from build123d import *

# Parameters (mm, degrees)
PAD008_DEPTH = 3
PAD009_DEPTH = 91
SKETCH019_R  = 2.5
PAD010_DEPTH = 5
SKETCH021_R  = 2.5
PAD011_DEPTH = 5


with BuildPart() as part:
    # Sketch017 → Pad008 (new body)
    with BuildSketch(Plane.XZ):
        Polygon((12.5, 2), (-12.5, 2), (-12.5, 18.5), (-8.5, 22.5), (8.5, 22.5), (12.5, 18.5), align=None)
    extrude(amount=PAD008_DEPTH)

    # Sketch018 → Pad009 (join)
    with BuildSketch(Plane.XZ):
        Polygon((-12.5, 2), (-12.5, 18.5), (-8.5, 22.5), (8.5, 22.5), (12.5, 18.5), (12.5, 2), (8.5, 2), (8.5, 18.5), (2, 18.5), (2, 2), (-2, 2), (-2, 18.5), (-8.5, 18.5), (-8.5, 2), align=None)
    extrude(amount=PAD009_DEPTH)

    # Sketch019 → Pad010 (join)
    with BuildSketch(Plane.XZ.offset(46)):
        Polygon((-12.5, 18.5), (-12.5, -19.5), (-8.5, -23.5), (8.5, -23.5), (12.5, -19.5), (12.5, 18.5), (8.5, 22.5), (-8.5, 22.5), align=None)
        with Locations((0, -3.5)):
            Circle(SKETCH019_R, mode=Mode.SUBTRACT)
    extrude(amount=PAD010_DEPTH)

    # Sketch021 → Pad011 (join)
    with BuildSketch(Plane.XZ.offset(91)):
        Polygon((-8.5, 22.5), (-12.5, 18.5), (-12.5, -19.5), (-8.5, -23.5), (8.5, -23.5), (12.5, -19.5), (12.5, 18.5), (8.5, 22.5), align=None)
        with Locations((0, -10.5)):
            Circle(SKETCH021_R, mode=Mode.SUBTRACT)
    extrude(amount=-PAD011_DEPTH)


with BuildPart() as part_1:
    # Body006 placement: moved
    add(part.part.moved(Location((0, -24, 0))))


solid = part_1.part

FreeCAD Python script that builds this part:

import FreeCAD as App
import Part
import Sketcher
from FreeCAD import Vector
Q = App.Units.Quantity


def add_polygon(sketch, points):
    """Adds a closed chain of lines whose ends are joined by coincident constraints."""
    first, n = sketch.GeometryCount, len(points)
    for a, b in zip(points, points[1:] + points[:1]):
        sketch.addGeometry(Part.LineSegment(App.Vector(*a, 0), App.Vector(*b, 0)), False)
    for i in range(n):
        sketch.addConstraint(Sketcher.Constraint("Coincident", first + i, 2, first + (i + 1) % n, 1))

doc = App.newDocument("Part")
body = doc.addObject("PartDesign::Body", "Body")

# Sketch on XZ plane
sketch1 = body.newObject("Sketcher::SketchObject", "Sketch")
sketch1.AttachmentSupport = (doc.getObject("XZ_Plane"), [""])
sketch1.MapMode = "FlatFace"
add_polygon(sketch1, [(-12, 2), (12, 2), (12, 18), (8, 22), (-8, 22), (-12, 18)])  # lines 0-5
sketch1.addConstraint(Sketcher.Constraint("Horizontal", 0))
sketch1.addConstraint(Sketcher.Constraint("Vertical", 1))
sketch1.addConstraint(Sketcher.Constraint("Horizontal", 3))
sketch1.addConstraint(Sketcher.Constraint("Vertical", 5))
sketch1.addConstraint(Sketcher.Constraint("Symmetric", 1, 2, 4, 2, -2))
sketch1.addConstraint(Sketcher.Constraint("Perpendicular", 2, 4))
sketch1.addConstraint(Sketcher.Constraint("Equal", 2, 4))
sketch1.addConstraint(Sketcher.Constraint("DistanceX", 0, 1, 0, 2, Q("25 mm")))
sketch1.addConstraint(Sketcher.Constraint("DistanceX", 3, 2, 3, 1, Q("17 mm")))
sketch1.addConstraint(Sketcher.Constraint("DistanceY", 1, 1, 1, 2, Q("16.5 mm")))
sketch1.addConstraint(Sketcher.Constraint("DistanceY", -1, 1, 0, 2, Q("2 mm")))
pad1 = body.newObject("PartDesign::Pad", "Pad")
pad1.Profile = sketch1
pad1.Length = 3

# Sketch on XZ plane
sketch2 = body.newObject("Sketcher::SketchObject", "Sketch001")
sketch2.AttachmentSupport = (doc.getObject("XZ_Plane"), [""])
sketch2.MapMode = "FlatFace"
add_polygon(sketch2, [(-12.5, 18.5), (-12.5, 2), (-8.5, 2), (-8.5, 18.5), (-2, 18.5), (-2, 2), (2, 2), (2, 18.5), (8.5, 18.5), (8.5, 2), (12.5, 2), (12.5, 18.5), (8.5, 22.5), (-8.5, 22.5)])  # lines 0-13
sketch2.addConstraint(Sketcher.Constraint("Vertical", 0))
sketch2.addConstraint(Sketcher.Constraint("Horizontal", 1))
sketch2.addConstraint(Sketcher.Constraint("Vertical", 2))
sketch2.addConstraint(Sketcher.Constraint("Horizontal", 3))
sketch2.addConstraint(Sketcher.Constraint("Vertical", 4))
sketch2.addConstraint(Sketcher.Constraint("Horizontal", 5))
sketch2.addConstraint(Sketcher.Constraint("Vertical", 6))
sketch2.addConstraint(Sketcher.Constraint("Horizontal", 7))
sketch2.addConstraint(Sketcher.Constraint("Vertical", 8))
sketch2.addConstraint(Sketcher.Constraint("Horizontal", 9))
sketch2.addConstraint(Sketcher.Constraint("Vertical", 10))
sketch2.addConstraint(Sketcher.Constraint("Horizontal", 12))
sketch2.addConstraint(Sketcher.Constraint("Symmetric", 3, 2, 6, 2, -2))
sketch2.addConstraint(Sketcher.Constraint("Symmetric", 1, 2, 8, 2, -2))
sketch2.addConstraint(Sketcher.Constraint("Symmetric", 10, 2, 13, 2, -2))
sketch2.addConstraint(Sketcher.Constraint("Perpendicular", 11, 13))
sketch2.addConstraint(Sketcher.Constraint("Horizontal", 1, 2, 4, 2))
sketch2.addConstraint(Sketcher.Constraint("Horizontal", 7, 2, 10, 2))
sketch2.addConstraint(Sketcher.Constraint("Vertical", 8, 2, 11, 2))
sketch2.addConstraint(Sketcher.Constraint("Vertical", 2, 2, 12, 2))
sketch2.addConstraint(Sketcher.Constraint("Equal", 1, 5))
sketch2.addConstraint(Sketcher.Constraint("DistanceX", 1, 1, 1, 2, Q("4 mm")))
sketch2.addConstraint(Sketcher.Constraint("DistanceX", 12, 2, 12, 1, Q("17 mm")))
sketch2.addConstraint(Sketcher.Constraint("DistanceY", 0, 2, 0, 1, Q("16.5 mm")))
sketch2.addConstraint(Sketcher.Constraint("DistanceY", -1, 1, 0, 2, Q("2 mm")))
pad2 = body.newObject("PartDesign::Pad", "Pad001")
pad2.Profile = sketch2
pad2.Length = 91

# Sketch on XZ plane
sketch3 = body.newObject("Sketcher::SketchObject", "Sketch002")
sketch3.AttachmentSupport = (doc.getObject("XZ_Plane"), [""])
sketch3.MapMode = "FlatFace"
sketch3.AttachmentOffset = App.Placement(Vector(0, 0, 46), App.Rotation())
add_polygon(sketch3, [(-12.5, 18.5), (-12.5, -19.5), (-8.5, -23.5), (8.5, -23.5), (12.5, -19.5), (12.5, 18.5), (8.5, 22.5), (-8.5, 22.5)])  # lines 0-7
sketch3.addGeometry(Part.Circle(Vector(0, -3.5, 0), Vector(0, 0, 1), 2.5), False)  # 8
sketch3.addConstraint(Sketcher.Constraint("Vertical", 0))
sketch3.addConstraint(Sketcher.Constraint("Horizontal", 2))
sketch3.addConstraint(Sketcher.Constraint("Vertical", 4))
sketch3.addConstraint(Sketcher.Constraint("Horizontal", 6))
sketch3.addConstraint(Sketcher.Constraint("Symmetric", 0, 2, 3, 2, -2))
sketch3.addConstraint(Sketcher.Constraint("PointOnObject", 8, 3, -2))
sketch3.addConstraint(Sketcher.Constraint("Perpendicular", 1, 3))
sketch3.addConstraint(Sketcher.Constraint("Perpendicular", 3, 5))
sketch3.addConstraint(Sketcher.Constraint("Perpendicular", 5, 7))
sketch3.addConstraint(Sketcher.Constraint("Horizontal", 4, 2, 7, 2))
sketch3.addConstraint(Sketcher.Constraint("Vertical", 2, 2, 5, 2))
sketch3.addConstraint(Sketcher.Constraint("Vertical", 1, 2, 6, 2))
sketch3.addConstraint(Sketcher.Constraint("Diameter", 8, Q("5 mm")))
sketch3.addConstraint(Sketcher.Constraint("DistanceX", 2, 1, 2, 2, Q("17 mm")))
sketch3.addConstraint(Sketcher.Constraint("DistanceY", 0, 2, 0, 1, Q("38 mm")))
sketch3.addConstraint(Sketcher.Constraint("DistanceY", 0, 2, 8, 3, Q("16 mm")))
sketch3.addConstraint(Sketcher.Constraint("DistanceX", 0, 2, 1, 2, Q("4 mm")))
sketch3.addConstraint(Sketcher.Constraint("DistanceY", 8, 3, -1, 1, Q("3.5 mm")))
pad3 = body.newObject("PartDesign::Pad", "Pad002")
pad3.Profile = sketch3
pad3.Length = 5

# Sketch on XZ plane
sketch4 = body.newObject("Sketcher::SketchObject", "Sketch003")
sketch4.AttachmentSupport = (doc.getObject("XZ_Plane"), [""])
sketch4.MapMode = "FlatFace"
sketch4.AttachmentOffset = App.Placement(Vector(0, 0, 91), App.Rotation())
add_polygon(sketch4, [(-8.5, 22.5), (-12.5, 18.5), (-12.5, -19.5), (-8.5, -23.5), (8.5, -23.5), (12.5, -19.5), (12.5, 18.5), (8.5, 22.5)])  # lines 0-7
sketch4.addGeometry(Part.Circle(Vector(0, -10.5, 0), Vector(0, 0, 1), 2.5), False)  # 8
sketch4.addConstraint(Sketcher.Constraint("Vertical", 1))
sketch4.addConstraint(Sketcher.Constraint("Horizontal", 3))
sketch4.addConstraint(Sketcher.Constraint("Vertical", 5))
sketch4.addConstraint(Sketcher.Constraint("Horizontal", 7))
sketch4.addConstraint(Sketcher.Constraint("Symmetric", 1, 2, 4, 2, -2))
sketch4.addConstraint(Sketcher.Constraint("PointOnObject", 8, 3, -2))
sketch4.addConstraint(Sketcher.Constraint("Perpendicular", 0, 2))
sketch4.addConstraint(Sketcher.Constraint("Perpendicular", 2, 4))
sketch4.addConstraint(Sketcher.Constraint("Perpendicular", 4, 6))
sketch4.addConstraint(Sketcher.Constraint("Horizontal", 0, 2, 5, 2))
sketch4.addConstraint(Sketcher.Constraint("Vertical", 3, 2, 6, 2))
sketch4.addConstraint(Sketcher.Constraint("Vertical", 2, 2, 7, 2))
sketch4.addConstraint(Sketcher.Constraint("Diameter", 8, Q("5 mm")))
sketch4.addConstraint(Sketcher.Constraint("DistanceX", 3, 1, 3, 2, Q("17 mm")))
sketch4.addConstraint(Sketcher.Constraint("DistanceY", 1, 2, 1, 1, Q("38 mm")))
sketch4.addConstraint(Sketcher.Constraint("DistanceY", 8, 3, 0, 2, Q("29 mm")))
sketch4.addConstraint(Sketcher.Constraint("DistanceX", 1, 2, 2, 2, Q("4 mm")))
sketch4.addConstraint(Sketcher.Constraint("DistanceY", 8, 3, -1, 1, Q("10.5 mm")))
pad4 = body.newObject("PartDesign::Pad", "Pad003")
pad4.Profile = sketch4
pad4.Length = 5
pad4.Reversed = True
body2 = doc.addObject("PartDesign::Body", "Body001")
doc.recompute()

body.Placement = App.Placement(Vector(0, -24, 0), App.Rotation(Vector(0, 0, 1), 0))
boolean = body2.newObject("PartDesign::Boolean", "Boolean")
boolean.Type = "Fuse"
boolean.addObjects([body])

doc.recompute()
